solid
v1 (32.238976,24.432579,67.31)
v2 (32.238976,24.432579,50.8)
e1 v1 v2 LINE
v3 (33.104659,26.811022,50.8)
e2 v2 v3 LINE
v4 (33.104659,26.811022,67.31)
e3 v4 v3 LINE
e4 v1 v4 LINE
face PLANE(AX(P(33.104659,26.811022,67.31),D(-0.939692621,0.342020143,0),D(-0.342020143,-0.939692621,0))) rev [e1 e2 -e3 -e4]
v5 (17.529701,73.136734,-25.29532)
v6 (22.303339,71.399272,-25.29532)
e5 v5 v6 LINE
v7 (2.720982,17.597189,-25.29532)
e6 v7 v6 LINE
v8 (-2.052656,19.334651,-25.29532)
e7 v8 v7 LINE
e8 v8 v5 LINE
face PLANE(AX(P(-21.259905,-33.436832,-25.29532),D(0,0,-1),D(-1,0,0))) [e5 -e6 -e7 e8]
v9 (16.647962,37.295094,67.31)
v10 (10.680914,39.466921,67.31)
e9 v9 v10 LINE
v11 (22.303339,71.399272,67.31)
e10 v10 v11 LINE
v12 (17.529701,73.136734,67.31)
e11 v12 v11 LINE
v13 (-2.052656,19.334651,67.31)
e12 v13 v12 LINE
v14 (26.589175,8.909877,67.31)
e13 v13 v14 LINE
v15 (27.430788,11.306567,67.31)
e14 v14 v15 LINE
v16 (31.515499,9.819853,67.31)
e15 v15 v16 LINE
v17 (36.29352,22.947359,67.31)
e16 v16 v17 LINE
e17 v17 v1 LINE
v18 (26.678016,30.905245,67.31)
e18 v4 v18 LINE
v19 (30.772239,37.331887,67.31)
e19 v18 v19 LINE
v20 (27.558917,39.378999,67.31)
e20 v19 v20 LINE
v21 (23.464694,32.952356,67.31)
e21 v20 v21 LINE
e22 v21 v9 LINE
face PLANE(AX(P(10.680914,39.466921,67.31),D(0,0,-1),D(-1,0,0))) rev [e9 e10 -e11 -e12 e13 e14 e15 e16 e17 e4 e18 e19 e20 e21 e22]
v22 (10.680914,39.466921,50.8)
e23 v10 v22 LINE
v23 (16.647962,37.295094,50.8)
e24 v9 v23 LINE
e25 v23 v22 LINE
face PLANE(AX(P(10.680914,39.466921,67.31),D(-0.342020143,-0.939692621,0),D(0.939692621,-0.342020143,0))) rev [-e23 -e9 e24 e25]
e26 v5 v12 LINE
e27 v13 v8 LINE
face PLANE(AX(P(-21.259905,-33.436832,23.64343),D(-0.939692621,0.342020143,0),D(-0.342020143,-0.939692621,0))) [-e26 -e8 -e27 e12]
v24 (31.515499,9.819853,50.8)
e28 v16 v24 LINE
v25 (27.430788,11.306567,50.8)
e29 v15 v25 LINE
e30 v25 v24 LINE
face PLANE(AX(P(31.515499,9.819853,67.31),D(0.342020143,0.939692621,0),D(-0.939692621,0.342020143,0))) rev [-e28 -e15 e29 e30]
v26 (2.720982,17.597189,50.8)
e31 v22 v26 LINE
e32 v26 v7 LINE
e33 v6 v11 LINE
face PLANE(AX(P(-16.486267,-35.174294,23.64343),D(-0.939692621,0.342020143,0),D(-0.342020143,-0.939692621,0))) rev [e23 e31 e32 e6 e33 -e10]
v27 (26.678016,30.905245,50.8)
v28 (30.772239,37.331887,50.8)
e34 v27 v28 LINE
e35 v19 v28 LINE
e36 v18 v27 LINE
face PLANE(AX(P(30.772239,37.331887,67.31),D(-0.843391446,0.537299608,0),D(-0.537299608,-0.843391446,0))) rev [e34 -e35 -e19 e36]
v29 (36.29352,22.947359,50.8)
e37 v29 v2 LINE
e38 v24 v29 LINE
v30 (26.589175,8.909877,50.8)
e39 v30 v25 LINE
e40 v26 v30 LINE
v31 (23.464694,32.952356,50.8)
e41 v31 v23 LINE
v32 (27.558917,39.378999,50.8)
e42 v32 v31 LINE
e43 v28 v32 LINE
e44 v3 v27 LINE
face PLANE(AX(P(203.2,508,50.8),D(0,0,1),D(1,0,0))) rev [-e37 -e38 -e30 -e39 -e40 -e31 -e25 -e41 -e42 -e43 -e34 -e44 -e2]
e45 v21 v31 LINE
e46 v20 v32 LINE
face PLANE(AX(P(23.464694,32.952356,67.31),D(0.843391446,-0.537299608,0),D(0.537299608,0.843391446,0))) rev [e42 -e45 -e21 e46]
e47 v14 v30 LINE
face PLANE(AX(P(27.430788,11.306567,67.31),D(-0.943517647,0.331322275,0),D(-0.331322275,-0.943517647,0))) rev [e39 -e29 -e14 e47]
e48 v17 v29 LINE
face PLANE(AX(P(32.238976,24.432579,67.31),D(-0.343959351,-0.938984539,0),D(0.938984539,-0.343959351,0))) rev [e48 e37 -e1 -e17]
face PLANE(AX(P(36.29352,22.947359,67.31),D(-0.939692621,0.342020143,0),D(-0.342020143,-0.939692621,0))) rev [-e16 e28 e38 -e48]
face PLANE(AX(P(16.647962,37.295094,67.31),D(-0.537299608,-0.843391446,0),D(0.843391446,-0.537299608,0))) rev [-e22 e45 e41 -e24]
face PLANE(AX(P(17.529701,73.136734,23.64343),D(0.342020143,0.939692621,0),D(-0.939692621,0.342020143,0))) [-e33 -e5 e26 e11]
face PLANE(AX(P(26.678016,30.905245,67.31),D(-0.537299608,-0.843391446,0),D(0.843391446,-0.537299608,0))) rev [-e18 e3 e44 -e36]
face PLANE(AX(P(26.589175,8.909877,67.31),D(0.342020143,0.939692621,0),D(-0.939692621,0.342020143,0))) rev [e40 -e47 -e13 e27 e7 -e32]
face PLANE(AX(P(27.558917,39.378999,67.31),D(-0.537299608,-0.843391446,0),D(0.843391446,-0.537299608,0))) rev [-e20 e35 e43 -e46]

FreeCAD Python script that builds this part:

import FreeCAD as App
import Part
import Sketcher
from FreeCAD import Vector
Q = App.Units.Quantity

doc = App.newDocument("Part")
body = doc.addObject("PartDesign::Body", "Body")

sketch1 = body.newObject("Sketcher::SketchObject", "Sketch")
sketch1.AttachmentSupport = (doc.getObject("XY_Plane"), [""])
sketch1.MapMode = "FlatFace"
sketch1.addGeometry(Part.LineSegment(Vector(0, 102, 0), Vector(0, 0, 0)), False)
sketch1.addGeometry(Part.LineSegment(Vector(0, 0, 0), Vector(203, 0, 0)), False)
sketch1.addGeometry(Part.LineSegment(Vector(203, 0, 0), Vector(203, 102, 0)), False)
sketch1.addGeometry(Part.LineSegment(Vector(203, 102, 0), Vector(0, 102, 0)), False)
sketch1.addConstraint(Sketcher.Constraint("Coincident", 0, 2, 1, 1))
sketch1.addConstraint(Sketcher.Constraint("Coincident", 1, 2, 2, 1))
sketch1.addConstraint(Sketcher.Constraint("Coincident", 2, 2, 3, 1))
sketch1.addConstraint(Sketcher.Constraint("Coincident", 3, 2, 0, 1))
sketch1.addConstraint(Sketcher.Constraint("Vertical", 0))
sketch1.addConstraint(Sketcher.Constraint("Horizontal", 1))
sketch1.addConstraint(Sketcher.Constraint("Vertical", 2))
sketch1.addConstraint(Sketcher.Constraint("Horizontal", 3))
sketch1.addConstraint(Sketcher.Constraint("Coincident", 0, 2, -1, 1))
sketch1.addConstraint(Sketcher.Constraint("DistanceX", 1, 1, 1, 2, Q("8 in")))
sketch1.addConstraint(Sketcher.Constraint("DistanceY", 0, 2, 0, 1, Q("4 in")))
pad1 = body.newObject("PartDesign::Pad", "Pad")
pad1.Profile = sketch1
pad1.Length = Q("2 in")

sketch2 = body.newObject("Sketcher::SketchObject", "Sketch001")
sketch2.AttachmentSupport = (doc.getObject("XY_Plane"), [""])
sketch2.MapMode = "FlatFace"
sketch2.AttachmentOffset = App.Placement(Vector(0, 0, 2 * 25.4), App.Rotation())
sketch2.addGeometry(Part.LineSegment(Vector(16.6, 37.3, 0), Vector(10.7, 39.5, 0)), False)
sketch2.addGeometry(Part.LineSegment(Vector(10.7, 39.5, 0), Vector(2.7, 17.6, 0)), False)
sketch2.addGeometry(Part.LineSegment(Vector(2.7, 17.6, 0), Vector(26.6, 8.9, 0)), False)
sketch2.addGeometry(Part.LineSegment(Vector(26.6, 8.9, 0), Vector(27.4, 11.3, 0)), False)
sketch2.addGeometry(Part.LineSegment(Vector(27.4, 11.3, 0), Vector(31.5, 9.8, 0)), False)
sketch2.addGeometry(Part.LineSegment(Vector(31.5, 9.8, 0), Vector(36.3, 22.9, 0)), False)
sketch2.addGeometry(Part.LineSegment(Vector(36.3, 22.9, 0), Vector(32.2, 24.4, 0)), False)
sketch2.addGeometry(Part.LineSegment(Vector(32.2, 24.4, 0), Vector(33.1, 26.8, 0)), False)
sketch2.addGeometry(Part.LineSegment(Vector(33.1, 26.8, 0), Vector(26.7, 30.9, 0)), False)
sketch2.addGeometry(Part.LineSegment(Vector(26.7, 30.9, 0), Vector(30.8, 37.3, 0)), False)
sketch2.addGeometry(Part.LineSegment(Vector(30.8, 37.3, 0), Vector(27.6, 39.4, 0)), False)
sketch2.addGeometry(Part.LineSegment(Vector(27.6, 39.4, 0), Vector(23.5, 33, 0)), False)
sketch2.addGeometry(Part.LineSegment(Vector(23.5, 33, 0), Vector(16.6, 37.3, 0)), False)
sketch2.addConstraint(Sketcher.Constraint("Coincident", 0, 2, 1, 1))
sketch2.addConstraint(Sketcher.Constraint("Coincident", 1, 2, 2, 1))
sketch2.addConstraint(Sketcher.Constraint("Coincident", 2, 2, 3, 1))
sketch2.addConstraint(Sketcher.Constraint("Coincident", 3, 2, 4, 1))
sketch2.addConstraint(Sketcher.Constraint("Coincident", 4, 2, 5, 1))
sketch2.addConstraint(Sketcher.Constraint("Coincident", 5, 2, 6, 1))
sketch2.addConstraint(Sketcher.Constraint("Coincident", 6, 2, 7, 1))
sketch2.addConstraint(Sketcher.Constraint("Coincident", 7, 2, 8, 1))
sketch2.addConstraint(Sketcher.Constraint("Coincident", 8, 2, 9, 1))
sketch2.addConstraint(Sketcher.Constraint("Coincident", 9, 2, 10, 1))
sketch2.addConstraint(Sketcher.Constraint("Coincident", 10, 2, 11, 1))
sketch2.addConstraint(Sketcher.Constraint("Coincident", 11, 2, 12, 1))
sketch2.addConstraint(Sketcher.Constraint("Coincident", 12, 2, 0, 1))
sketch2.addConstraint(Sketcher.Constraint("Perpendicular", 0, 1))
sketch2.addConstraint(Sketcher.Constraint("Perpendicular", 1, 2))
sketch2.addConstraint(Sketcher.Constraint("Parallel", 2, 4))
sketch2.addConstraint(Sketcher.Constraint("Perpendicular", 4, 5))
sketch2.addConstraint(Sketcher.Constraint("Parallel", 5, 7))
sketch2.addConstraint(Sketcher.Constraint("Perpendicular", 8, 9))
sketch2.addConstraint(Sketcher.Constraint("Perpendicular", 9, 10))
sketch2.addConstraint(Sketcher.Constraint("Perpendicular", 10, 11))
sketch2.addConstraint(Sketcher.Constraint("Perpendicular", 11, 12))
sketch2.addConstraint(Sketcher.Constraint("Equal", 8, 9))
sketch2.addConstraint(Sketcher.Constraint("Equal", 9, 11))
sketch2.addConstraint(Sketcher.Constraint("Distance", 2, Q("1 in")))
sketch2.addConstraint(Sketcher.Constraint("Angle", 0, Q("160 deg")))
sketch2.addConstraint(Sketcher.Constraint("Distance", 8, Q("0.3 in")))
sketch2.addConstraint(Sketcher.Constraint("Angle", 8, Q("147.5 deg")))
sketch2.addConstraint(Sketcher.Constraint("Distance", 0, Q("0.25 in")))
sketch2.addConstraint(Sketcher.Constraint("Distance", 5, Q("0.55 in")))
sketch2.addConstraint(Sketcher.Constraint("Distance", 10, Q("0.15 in")))
sketch2.addConstraint(Sketcher.Constraint("DistanceX", -1, 1, 4, 2, 31.515499))
sketch2.addConstraint(Sketcher.Constraint("DistanceY", -1, 1, 10, 2, 39.378999))
sketch2.addConstraint(Sketcher.Constraint("DistanceX", 2, 2, 6, 2, 5.649801))
sketch2.addConstraint(Sketcher.Constraint("DistanceY", 2, 2, 6, 2, 15.522702))
sketch2.addConstraint(Sketcher.Constraint("Distance", 4, 4.346859))
sketch2.addConstraint(Sketcher.Constraint("Distance", 6, 4.318009))
sketch2.addConstraint(Sketcher.Constraint("DistanceY", -1, 1, 1, 2, 17.597189))
sketch2.addConstraint(Sketcher.Constraint("DistanceY", -1, 1, 5, 2, 22.947359))
pad2 = body.newObject("PartDesign::Pad", "Pad001")
pad2.Profile = sketch2
pad2.Length = Q("0.65 in")

sketch3 = body.newObject("Sketcher::SketchObject", "Sketch002")
sketch3.AttachmentSupport = (doc.getObject("XZ_Plane"), [""])
sketch3.MapMode = "FlatFace"
sketch3.addGeometry(Part.LineSegment(Vector(0, 51, 0), Vector(0, 0, 0)), False)
sketch3.addGeometry(Part.LineSegment(Vector(0, 0, 0), Vector(203, 0, 0)), False)
sketch3.addGeometry(Part.LineSegment(Vector(203, 0, 0), Vector(203, 51, 0)), False)
sketch3.addGeometry(Part.LineSegment(Vector(203, 51, 0), Vector(0, 51, 0)), False)
sketch3.addConstraint(Sketcher.Constraint("Coincident", 0, 2, 1, 1))
sketch3.addConstraint(Sketcher.Constraint("Coincident", 1, 2, 2, 1))
sketch3.addConstraint(Sketcher.Constraint("Coincident", 2, 2, 3, 1))
sketch3.addConstraint(Sketcher.Constraint("Coincident", 3, 2, 0, 1))
sketch3.addConstraint(Sketcher.Constraint("Vertical", 0))
sketch3.addConstraint(Sketcher.Constraint("Horizontal", 1))
sketch3.addConstraint(Sketcher.Constraint("Vertical", 2))
sketch3.addConstraint(Sketcher.Constraint("Horizontal", 3))
sketch3.addConstraint(Sketcher.Constraint("Coincident", 0, 2, -1, 1))
sketch3.addConstraint(Sketcher.Constraint("DistanceX", 1, 1, 1, 2, Q("8 in")))
sketch3.addConstraint(Sketcher.Constraint("DistanceY", 0, 2, 0, 1, Q("2 in")))
pocket1 = body.newObject("PartDesign::Pocket", "Pocket")
pocket1.Profile = sketch3
pocket1.Length = Q("20 in")

sketch4 = body.newObject("Sketcher::SketchObject", "Sketch003")
sketch4.Placement = App.Placement(Vector(-3.25294, 1.183973, 0), App.Rotation(Vector(0, 0, 1), Vector(0.342020143, 0.939692621, 0), Vector(-0.939692621, 0.342020143, 0), "ZXY"))
sketch4.addGeometry(Part.LineSegment(Vector(-25, 17, 0), Vector(67, 17, 0)), False)
sketch4.addGeometry(Part.LineSegment(Vector(67, 17, 0), Vector(67, 75, 0)), False)
sketch4.addGeometry(Part.LineSegment(Vector(67, 75, 0), Vector(-25, 75, 0)), False)
sketch4.addGeometry(Part.LineSegment(Vector(-25, 75, 0), Vector(-25, 17, 0)), False)
sketch4.addConstraint(Sketcher.Constraint("Coincident", 0, 2, 1, 1))
sketch4.addConstraint(Sketcher.Constraint("Coincident", 1, 2, 2, 1))
sketch4.addConstraint(Sketcher.Constraint("Coincident", 2, 2, 3, 1))
sketch4.addConstraint(Sketcher.Constraint("Coincident", 3, 2, 0, 1))
sketch4.addConstraint(Sketcher.Constraint("Horizontal", 0))
sketch4.addConstraint(Sketcher.Constraint("Vertical", 1))
sketch4.addConstraint(Sketcher.Constraint("Horizontal", 2))
sketch4.addConstraint(Sketcher.Constraint("Vertical", 3))
sketch4.addConstraint(Sketcher.Constraint("DistanceX", -1, 1, 0, 2, Q("2.65 in")))
sketch4.addConstraint(Sketcher.Constraint("DistanceX", 0, 1, 0, 2, 92.60532))
sketch4.addConstraint(Sketcher.Constraint("DistanceY", 1, 1, 1, 2, 57.254981))
sketch4.addConstraint(Sketcher.Constraint("DistanceY", -1, 1, 0, 2, 17.466579))
pad3 = body.newObject("PartDesign::Pad", "Pad002")
pad3.Profile = sketch4
pad3.Length = Q("0.2 in")

doc.recompute()
